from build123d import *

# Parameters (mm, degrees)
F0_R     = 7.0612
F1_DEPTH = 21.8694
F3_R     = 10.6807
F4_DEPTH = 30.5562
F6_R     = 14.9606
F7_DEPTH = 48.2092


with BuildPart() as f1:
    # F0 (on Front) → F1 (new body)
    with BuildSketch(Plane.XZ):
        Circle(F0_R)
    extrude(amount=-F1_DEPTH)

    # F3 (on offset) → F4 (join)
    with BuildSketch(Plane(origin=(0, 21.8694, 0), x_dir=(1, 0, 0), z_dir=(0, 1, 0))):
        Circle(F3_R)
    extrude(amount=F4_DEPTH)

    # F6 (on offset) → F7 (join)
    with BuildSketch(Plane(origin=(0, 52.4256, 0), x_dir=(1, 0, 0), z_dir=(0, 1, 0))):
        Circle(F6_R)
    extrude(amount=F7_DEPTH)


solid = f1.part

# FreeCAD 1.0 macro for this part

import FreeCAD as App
import Part
import Sketcher
from FreeCAD import Vector
Q = App.Units.Quantity

doc = App.newDocument("Part")
params = doc.addObject("Spreadsheet::Sheet", "Params")
for row, (alias, value) in enumerate([
    ("sketch1_diameter", "0.556 in"),
    ("pad1_length", "0.861 in"),
    ("sketch2_diameter", "0.841 in"),
    ("pad2_length", "1.203 in"),
    ("sketch3_diameter", "1.178 in"),
    ("pad3_length", "1.898 in"),
], start=1):
    params.set(f"A{row}", alias)
    params.set(f"B{row}", "=" + value)
    params.setAlias(f"B{row}", alias)

body = doc.addObject("PartDesign::Body", "Body")

# Sketch on XZ plane
sketch1 = body.newObject("Sketcher::SketchObject", "Sketch")
sketch1.AttachmentSupport = (doc.getObject("XZ_Plane"), [""])
sketch1.MapMode = "FlatFace"
sketch1.addGeometry(Part.Circle(Vector(0, 0, 0), Vector(0, 0, 1), 7.0612), False)
sketch1.addConstraint(Sketcher.Constraint("Coincident", 0, 3, -1, 1))
sketch1.addConstraint(Sketcher.Constraint("Diameter", 0, Q("0.556 in")))
sketch1.setExpression("Constraints[1]", "Params.sketch1_diameter")
pad1 = body.newObject("PartDesign::Pad", "Pad")
pad1.Profile = sketch1
pad1.setExpression("Length", "Params.pad1_length")
pad1.Reversed = True

# Sketch on XZ plane
sketch2 = body.newObject("Sketcher::SketchObject", "Sketch001")
sketch2.AttachmentSupport = (doc.getObject("XZ_Plane"), [""])
sketch2.MapMode = "FlatFace"
sketch2.AttachmentOffset = App.Placement(Vector(0, 0, -0.861 * 25.4), App.Rotation())
sketch2.addGeometry(Part.Circle(Vector(0, 0, 0), Vector(0, 0, 1), 10.6807), False)
sketch2.addConstraint(Sketcher.Constraint("Coincident", 0, 3, -1, 1))
sketch2.addConstraint(Sketcher.Constraint("Diameter", 0, Q("0.841 in")))
sketch2.setExpression("Constraints[1]", "Params.sketch2_diameter")
pad2 = body.newObject("PartDesign::Pad", "Pad001")
pad2.Profile = sketch2
pad2.setExpression("Length", "Params.pad2_length")
pad2.Reversed = True

# Sketch on XZ plane
sketch3 = body.newObject("Sketcher::SketchObject", "Sketch002")
sketch3.AttachmentSupport = (doc.getObject("XZ_Plane"), [""])
sketch3.MapMode = "FlatFace"
sketch3.AttachmentOffset = App.Placement(Vector(0, 0, -2.064 * 25.4), App.Rotation())
sketch3.addGeometry(Part.Circle(Vector(0, 0, 0), Vector(0, 0, 1), 14.9606), False)
sketch3.addConstraint(Sketcher.Constraint("Coincident", 0, 3, -1, 1))
sketch3.addConstraint(Sketcher.Constraint("Diameter", 0, Q("1.178 in")))
sketch3.setExpression("Constraints[1]", "Params.sketch3_diameter")
pad3 = body.newObject("PartDesign::Pad", "Pad002")
pad3.Profile = sketch3
pad3.setExpression("Length", "Params.pad3_length")
pad3.Reversed = True

doc.recompute()
